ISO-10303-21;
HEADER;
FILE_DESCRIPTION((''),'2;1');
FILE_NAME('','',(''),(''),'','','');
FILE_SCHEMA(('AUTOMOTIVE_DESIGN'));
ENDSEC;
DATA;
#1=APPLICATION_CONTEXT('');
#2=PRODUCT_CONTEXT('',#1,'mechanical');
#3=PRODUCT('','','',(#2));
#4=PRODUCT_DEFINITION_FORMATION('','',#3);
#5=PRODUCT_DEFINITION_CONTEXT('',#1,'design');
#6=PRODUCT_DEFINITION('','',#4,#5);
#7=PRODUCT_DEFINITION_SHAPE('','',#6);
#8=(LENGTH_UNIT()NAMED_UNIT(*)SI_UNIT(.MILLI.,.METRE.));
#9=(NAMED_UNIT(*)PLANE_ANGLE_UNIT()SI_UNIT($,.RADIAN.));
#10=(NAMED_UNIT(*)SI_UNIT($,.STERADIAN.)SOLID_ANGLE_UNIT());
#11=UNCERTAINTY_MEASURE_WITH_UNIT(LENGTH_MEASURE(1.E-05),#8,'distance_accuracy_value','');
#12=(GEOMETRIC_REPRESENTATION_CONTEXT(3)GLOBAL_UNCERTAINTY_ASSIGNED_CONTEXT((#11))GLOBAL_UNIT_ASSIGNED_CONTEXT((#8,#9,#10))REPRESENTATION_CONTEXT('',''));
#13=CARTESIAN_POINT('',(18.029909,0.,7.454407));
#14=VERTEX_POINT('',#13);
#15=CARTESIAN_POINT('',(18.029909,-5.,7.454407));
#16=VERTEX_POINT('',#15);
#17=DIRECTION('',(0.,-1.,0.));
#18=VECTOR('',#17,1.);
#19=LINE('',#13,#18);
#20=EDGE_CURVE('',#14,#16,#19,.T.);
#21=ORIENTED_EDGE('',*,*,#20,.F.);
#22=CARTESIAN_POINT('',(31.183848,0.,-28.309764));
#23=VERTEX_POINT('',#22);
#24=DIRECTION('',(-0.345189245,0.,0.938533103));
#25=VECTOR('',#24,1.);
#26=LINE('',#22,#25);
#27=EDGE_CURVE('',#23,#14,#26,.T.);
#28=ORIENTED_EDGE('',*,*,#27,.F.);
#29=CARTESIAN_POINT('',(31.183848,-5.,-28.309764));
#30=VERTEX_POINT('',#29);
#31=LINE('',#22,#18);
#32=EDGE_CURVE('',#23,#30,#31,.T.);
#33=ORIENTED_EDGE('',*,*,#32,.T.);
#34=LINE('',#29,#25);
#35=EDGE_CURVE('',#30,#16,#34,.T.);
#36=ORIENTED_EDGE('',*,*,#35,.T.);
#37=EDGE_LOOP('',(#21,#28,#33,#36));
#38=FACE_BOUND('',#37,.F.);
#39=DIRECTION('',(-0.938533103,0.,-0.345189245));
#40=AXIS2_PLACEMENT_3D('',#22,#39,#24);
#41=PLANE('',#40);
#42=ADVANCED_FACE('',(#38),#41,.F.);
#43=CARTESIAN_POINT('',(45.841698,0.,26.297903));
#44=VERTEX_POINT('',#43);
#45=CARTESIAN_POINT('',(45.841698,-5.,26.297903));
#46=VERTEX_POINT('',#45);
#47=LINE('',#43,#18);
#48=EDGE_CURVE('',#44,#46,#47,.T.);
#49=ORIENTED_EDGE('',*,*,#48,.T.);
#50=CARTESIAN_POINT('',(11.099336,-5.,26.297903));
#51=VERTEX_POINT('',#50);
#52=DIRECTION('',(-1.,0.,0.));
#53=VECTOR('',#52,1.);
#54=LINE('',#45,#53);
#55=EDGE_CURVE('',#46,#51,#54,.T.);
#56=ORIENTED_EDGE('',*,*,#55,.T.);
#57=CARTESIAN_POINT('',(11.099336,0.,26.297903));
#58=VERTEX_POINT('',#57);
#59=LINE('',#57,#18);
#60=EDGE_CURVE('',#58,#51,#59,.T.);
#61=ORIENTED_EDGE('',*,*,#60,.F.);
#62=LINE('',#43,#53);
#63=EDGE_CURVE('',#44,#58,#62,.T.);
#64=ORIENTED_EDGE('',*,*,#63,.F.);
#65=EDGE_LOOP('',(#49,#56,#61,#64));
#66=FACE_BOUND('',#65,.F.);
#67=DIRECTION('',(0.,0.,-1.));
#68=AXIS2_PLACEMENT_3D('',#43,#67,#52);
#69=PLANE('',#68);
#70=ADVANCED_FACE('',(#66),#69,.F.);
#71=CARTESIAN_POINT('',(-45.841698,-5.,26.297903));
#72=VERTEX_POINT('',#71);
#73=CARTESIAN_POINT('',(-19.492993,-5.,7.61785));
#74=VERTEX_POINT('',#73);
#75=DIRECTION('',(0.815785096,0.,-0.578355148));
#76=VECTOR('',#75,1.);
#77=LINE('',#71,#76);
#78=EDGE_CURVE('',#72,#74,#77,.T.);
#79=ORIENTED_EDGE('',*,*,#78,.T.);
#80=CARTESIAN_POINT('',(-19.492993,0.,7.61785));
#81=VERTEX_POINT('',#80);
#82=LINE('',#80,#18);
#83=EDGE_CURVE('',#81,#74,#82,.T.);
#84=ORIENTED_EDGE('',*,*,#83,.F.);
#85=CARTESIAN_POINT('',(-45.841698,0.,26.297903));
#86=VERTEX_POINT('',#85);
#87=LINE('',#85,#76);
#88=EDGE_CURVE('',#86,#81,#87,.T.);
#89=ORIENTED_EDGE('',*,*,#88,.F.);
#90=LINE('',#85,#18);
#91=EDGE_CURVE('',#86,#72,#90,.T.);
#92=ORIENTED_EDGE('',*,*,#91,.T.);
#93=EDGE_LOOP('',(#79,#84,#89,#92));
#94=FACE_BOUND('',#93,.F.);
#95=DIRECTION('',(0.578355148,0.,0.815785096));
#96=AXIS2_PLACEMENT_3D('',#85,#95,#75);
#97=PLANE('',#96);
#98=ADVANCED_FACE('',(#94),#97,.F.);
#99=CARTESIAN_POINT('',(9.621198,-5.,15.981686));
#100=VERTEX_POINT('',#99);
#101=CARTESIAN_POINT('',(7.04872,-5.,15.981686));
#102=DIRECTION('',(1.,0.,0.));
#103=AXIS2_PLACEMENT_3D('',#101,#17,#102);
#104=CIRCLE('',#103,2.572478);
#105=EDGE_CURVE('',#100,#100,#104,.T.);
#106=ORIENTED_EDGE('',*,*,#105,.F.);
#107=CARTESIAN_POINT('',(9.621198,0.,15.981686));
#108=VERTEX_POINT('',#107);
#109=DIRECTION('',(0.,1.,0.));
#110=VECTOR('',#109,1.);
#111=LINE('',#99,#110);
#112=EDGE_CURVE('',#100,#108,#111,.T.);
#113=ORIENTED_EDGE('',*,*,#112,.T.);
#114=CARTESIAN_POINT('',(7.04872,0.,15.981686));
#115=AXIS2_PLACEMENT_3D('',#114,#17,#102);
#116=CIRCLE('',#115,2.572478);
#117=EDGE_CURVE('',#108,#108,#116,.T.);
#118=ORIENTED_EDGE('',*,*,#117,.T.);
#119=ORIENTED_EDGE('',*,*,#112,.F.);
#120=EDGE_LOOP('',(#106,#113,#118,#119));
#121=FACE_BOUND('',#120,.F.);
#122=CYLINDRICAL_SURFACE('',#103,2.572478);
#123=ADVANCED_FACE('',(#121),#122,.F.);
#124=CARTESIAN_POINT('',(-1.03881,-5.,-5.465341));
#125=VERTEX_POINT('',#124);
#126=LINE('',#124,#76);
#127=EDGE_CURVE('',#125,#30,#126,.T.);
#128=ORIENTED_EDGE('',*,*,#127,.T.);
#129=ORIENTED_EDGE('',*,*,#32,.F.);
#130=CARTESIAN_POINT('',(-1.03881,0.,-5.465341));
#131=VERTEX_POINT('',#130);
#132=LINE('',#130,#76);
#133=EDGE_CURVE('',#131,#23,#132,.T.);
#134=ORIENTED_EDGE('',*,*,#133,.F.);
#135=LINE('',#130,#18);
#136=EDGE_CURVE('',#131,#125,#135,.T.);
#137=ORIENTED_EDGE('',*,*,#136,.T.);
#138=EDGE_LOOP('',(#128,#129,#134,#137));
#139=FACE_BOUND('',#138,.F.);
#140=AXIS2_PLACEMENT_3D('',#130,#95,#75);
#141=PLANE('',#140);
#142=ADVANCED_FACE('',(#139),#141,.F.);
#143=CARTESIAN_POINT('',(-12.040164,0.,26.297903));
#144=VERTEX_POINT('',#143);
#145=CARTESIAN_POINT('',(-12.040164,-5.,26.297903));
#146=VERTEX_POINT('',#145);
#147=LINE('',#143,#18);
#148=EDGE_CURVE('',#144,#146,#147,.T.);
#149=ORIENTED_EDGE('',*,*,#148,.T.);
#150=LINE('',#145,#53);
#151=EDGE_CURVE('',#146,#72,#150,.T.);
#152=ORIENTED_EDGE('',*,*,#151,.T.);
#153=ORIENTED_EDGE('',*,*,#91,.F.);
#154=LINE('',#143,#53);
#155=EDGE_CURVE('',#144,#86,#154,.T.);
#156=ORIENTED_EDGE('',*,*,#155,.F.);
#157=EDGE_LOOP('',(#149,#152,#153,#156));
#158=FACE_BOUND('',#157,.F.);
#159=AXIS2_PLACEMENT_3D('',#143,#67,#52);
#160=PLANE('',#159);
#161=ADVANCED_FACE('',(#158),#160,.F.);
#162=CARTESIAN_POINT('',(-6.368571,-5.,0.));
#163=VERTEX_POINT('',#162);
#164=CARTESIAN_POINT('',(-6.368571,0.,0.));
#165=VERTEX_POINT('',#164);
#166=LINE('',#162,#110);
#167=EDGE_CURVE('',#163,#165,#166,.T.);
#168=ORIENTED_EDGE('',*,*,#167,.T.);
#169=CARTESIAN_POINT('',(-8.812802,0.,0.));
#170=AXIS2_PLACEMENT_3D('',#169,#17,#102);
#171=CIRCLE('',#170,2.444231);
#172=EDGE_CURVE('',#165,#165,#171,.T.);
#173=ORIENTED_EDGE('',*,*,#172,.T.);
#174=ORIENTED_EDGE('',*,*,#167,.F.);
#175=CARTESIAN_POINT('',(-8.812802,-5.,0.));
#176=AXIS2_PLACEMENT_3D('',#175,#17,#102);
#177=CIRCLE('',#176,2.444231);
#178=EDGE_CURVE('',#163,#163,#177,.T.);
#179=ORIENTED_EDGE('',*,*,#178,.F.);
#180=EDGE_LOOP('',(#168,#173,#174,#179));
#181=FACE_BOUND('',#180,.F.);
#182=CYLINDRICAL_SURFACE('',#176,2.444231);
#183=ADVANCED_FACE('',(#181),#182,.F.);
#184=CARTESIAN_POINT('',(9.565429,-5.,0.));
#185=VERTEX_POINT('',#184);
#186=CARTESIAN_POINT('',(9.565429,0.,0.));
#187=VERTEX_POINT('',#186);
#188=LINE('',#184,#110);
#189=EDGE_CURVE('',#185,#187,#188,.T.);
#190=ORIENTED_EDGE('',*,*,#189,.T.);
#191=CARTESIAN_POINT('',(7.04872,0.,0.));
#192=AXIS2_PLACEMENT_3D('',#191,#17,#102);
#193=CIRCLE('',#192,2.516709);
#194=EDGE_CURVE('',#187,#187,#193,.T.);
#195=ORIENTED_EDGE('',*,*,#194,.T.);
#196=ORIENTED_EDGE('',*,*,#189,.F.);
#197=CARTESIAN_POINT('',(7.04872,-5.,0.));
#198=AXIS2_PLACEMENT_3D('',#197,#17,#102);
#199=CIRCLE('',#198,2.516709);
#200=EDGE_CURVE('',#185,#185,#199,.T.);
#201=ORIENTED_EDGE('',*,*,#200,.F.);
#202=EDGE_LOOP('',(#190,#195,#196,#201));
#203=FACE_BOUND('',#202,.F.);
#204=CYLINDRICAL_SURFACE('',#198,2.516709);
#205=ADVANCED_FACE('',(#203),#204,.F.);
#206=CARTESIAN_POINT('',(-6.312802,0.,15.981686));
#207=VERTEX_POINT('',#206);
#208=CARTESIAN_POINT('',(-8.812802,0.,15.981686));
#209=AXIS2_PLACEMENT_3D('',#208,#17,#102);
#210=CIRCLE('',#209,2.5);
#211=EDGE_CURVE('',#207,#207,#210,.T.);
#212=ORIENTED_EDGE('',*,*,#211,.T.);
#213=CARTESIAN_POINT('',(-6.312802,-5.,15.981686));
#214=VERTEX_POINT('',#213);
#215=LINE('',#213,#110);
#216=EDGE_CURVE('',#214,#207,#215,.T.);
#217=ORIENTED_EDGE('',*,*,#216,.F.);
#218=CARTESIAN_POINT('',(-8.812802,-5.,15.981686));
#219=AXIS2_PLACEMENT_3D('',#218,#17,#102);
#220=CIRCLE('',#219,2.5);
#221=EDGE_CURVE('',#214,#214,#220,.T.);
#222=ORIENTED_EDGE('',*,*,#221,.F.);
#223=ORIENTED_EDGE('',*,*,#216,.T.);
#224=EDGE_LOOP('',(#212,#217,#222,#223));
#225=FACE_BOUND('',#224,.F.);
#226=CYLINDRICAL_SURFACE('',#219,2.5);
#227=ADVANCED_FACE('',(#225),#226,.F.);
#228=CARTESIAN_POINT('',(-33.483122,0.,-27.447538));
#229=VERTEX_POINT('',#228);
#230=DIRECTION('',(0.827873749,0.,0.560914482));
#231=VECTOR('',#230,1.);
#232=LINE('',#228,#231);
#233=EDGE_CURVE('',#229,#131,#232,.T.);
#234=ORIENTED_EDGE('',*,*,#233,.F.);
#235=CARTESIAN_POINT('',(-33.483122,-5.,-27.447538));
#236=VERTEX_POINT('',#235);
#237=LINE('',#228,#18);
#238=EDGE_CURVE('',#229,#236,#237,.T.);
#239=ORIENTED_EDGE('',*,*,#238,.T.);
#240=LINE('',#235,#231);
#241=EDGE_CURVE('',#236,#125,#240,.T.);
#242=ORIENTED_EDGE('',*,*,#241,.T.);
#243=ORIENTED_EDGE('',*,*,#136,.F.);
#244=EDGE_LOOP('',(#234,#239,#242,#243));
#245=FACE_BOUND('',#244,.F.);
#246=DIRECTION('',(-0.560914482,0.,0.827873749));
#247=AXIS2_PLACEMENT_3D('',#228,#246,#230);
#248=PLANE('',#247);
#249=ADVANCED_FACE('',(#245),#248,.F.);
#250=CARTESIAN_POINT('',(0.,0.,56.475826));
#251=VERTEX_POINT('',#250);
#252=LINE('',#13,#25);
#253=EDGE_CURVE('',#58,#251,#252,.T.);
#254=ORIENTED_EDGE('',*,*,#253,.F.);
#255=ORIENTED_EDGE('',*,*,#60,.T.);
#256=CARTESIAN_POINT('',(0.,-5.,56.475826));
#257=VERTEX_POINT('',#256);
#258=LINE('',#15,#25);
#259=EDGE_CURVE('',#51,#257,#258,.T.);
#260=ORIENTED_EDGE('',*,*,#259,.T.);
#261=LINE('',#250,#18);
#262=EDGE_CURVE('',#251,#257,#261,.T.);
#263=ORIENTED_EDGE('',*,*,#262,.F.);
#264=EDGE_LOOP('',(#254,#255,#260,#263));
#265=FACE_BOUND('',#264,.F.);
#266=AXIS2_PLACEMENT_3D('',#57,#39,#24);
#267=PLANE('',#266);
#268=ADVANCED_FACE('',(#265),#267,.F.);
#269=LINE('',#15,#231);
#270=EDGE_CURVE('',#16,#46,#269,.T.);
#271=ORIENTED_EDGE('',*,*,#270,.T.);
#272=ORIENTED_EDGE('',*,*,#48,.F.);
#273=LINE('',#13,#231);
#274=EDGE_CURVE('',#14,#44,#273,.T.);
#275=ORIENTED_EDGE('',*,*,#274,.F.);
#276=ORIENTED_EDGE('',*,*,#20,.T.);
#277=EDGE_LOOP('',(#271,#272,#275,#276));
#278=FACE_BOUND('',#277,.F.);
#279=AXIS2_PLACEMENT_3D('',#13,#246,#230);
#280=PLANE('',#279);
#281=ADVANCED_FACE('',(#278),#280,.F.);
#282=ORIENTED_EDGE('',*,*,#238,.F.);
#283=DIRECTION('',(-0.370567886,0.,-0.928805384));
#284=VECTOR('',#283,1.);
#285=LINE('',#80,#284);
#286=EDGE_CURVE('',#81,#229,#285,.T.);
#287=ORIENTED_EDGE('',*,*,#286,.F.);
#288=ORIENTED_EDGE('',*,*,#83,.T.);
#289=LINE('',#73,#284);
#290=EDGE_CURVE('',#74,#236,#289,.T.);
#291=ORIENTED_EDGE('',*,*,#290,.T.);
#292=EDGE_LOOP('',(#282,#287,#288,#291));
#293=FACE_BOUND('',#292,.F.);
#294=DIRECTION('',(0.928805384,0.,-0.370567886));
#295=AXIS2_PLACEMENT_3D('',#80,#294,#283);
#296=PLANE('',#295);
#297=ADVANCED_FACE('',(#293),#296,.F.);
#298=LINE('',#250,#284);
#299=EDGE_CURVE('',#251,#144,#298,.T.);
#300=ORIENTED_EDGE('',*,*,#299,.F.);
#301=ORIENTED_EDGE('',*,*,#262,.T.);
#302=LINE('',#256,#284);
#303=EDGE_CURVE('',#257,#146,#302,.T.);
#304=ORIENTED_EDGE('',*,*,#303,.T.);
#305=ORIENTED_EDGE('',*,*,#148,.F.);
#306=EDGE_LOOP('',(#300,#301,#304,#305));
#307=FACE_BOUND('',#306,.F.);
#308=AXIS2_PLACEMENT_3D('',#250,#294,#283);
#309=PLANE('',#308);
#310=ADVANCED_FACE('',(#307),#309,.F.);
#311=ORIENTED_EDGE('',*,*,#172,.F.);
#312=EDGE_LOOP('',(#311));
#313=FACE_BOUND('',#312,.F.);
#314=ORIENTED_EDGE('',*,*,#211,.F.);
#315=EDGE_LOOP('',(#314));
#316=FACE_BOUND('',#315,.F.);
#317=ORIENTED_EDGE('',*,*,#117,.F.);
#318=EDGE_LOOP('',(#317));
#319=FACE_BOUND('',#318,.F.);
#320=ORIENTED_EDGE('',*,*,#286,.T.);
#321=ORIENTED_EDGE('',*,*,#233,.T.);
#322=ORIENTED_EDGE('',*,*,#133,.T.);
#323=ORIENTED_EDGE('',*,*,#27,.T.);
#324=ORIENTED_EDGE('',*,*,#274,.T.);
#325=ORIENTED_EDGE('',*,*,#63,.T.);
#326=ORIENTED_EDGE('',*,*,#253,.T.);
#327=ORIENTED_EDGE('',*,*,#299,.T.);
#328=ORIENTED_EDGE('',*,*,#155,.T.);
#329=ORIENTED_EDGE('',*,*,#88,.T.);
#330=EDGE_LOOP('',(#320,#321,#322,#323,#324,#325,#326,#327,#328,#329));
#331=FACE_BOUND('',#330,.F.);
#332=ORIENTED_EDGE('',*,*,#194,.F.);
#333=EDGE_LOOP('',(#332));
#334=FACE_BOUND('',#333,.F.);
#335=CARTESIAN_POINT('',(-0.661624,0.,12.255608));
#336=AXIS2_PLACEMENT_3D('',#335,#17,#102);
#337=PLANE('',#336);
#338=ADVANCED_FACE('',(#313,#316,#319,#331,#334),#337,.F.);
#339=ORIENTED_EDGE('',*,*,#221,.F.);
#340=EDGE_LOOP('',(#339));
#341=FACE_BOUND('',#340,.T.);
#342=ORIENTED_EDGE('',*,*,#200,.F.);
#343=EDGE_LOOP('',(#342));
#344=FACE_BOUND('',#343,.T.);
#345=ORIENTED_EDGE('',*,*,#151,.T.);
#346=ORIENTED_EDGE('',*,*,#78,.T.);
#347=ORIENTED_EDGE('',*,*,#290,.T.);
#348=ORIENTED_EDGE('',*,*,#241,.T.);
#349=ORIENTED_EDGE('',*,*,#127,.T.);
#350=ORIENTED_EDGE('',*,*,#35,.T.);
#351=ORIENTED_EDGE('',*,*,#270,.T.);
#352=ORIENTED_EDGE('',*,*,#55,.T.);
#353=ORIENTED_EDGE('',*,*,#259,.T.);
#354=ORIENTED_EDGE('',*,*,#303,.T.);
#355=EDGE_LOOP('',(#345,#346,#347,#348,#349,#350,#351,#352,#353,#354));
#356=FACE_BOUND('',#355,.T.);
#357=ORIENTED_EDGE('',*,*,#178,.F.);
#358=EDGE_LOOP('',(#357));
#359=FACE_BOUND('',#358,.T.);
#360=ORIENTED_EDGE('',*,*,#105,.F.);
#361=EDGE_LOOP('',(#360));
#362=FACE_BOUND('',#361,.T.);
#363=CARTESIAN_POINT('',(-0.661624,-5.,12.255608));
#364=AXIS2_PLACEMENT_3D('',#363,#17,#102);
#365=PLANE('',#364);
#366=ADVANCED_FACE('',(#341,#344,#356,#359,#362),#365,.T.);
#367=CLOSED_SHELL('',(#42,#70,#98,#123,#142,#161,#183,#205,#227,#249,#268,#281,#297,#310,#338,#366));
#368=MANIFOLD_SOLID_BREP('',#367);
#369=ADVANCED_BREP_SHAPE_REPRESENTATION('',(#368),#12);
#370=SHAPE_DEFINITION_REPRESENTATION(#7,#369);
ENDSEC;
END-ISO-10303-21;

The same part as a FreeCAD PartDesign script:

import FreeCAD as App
import Part
import Sketcher

doc = App.newDocument("Part")
body = doc.addObject("PartDesign::Body", "Body")

sketch1 = body.newObject("Sketcher::SketchObject", "Sketch")
sketch1.AttachmentSupport = (doc.getObject("XZ_Plane"), [""])
sketch1.MapMode = "FlatFace"
sketch1.addGeometry([
    Part.LineSegment(App.Vector(11, 26, 0), App.Vector(0, 56, 0)),
    Part.LineSegment(App.Vector(0, 56, 0), App.Vector(-12, 26, 0)),
    Part.LineSegment(App.Vector(-12, 26, 0), App.Vector(-46, 26, 0)),
    Part.LineSegment(App.Vector(-46, 26, 0), App.Vector(-19, 8, 0)),
    Part.LineSegment(App.Vector(-19, 8, 0), App.Vector(-33, -27, 0)),
    Part.LineSegment(App.Vector(-33, -27, 0), App.Vector(-1, -5, 0)),
    Part.LineSegment(App.Vector(-1, -5, 0), App.Vector(31, -28, 0)),
    Part.LineSegment(App.Vector(31, -28, 0), App.Vector(18, 7, 0)),
    Part.LineSegment(App.Vector(18, 7, 0), App.Vector(46, 26, 0)),
    Part.LineSegment(App.Vector(46, 26, 0), App.Vector(11, 26, 0)),
], False)
sketch1.addConstraint([
    Sketcher.Constraint("Coincident", 0, 2, 1, 1),
    Sketcher.Constraint("Coincident", 1, 2, 2, 1),
    Sketcher.Constraint("Coincident", 2, 2, 3, 1),
    Sketcher.Constraint("Coincident", 3, 2, 4, 1),
    Sketcher.Constraint("Coincident", 4, 2, 5, 1),
    Sketcher.Constraint("Coincident", 5, 2, 6, 1),
    Sketcher.Constraint("Coincident", 6, 2, 7, 1),
    Sketcher.Constraint("Coincident", 7, 2, 8, 1),
    Sketcher.Constraint("Coincident", 8, 2, 9, 1),
    Sketcher.Constraint("Coincident", 9, 2, 0, 1),
    Sketcher.Constraint("Horizontal", 2),
    Sketcher.Constraint("Horizontal", 9),
    Sketcher.Constraint("Symmetric", 2, 2, 8, 2, -2),
    Sketcher.Constraint("PointOnObject", 0, 2, -2),
    Sketcher.Constraint("Parallel", 1, 4),
    Sketcher.Constraint("Parallel", 3, 6),
    Sketcher.Constraint("Parallel", 0, 7),
    Sketcher.Constraint("Parallel", 5, 8),
    Sketcher.Constraint("DistanceX", 9, 2, 9, 1, 34.742361),
    Sketcher.Constraint("DistanceX", 3, 2, 7, 2, 37.522902),
    Sketcher.Constraint("DistanceX", 1, 2, 9, 2, 23.1395),
    Sketcher.Constraint("Distance", 0, 32.154351),
    Sketcher.Constraint("Distance", 8, 33.594239),
    Sketcher.Constraint("DistanceX", 2, 2, 2, 1, 33.801534),
    Sketcher.Constraint("DistanceY", -1, 1, 3, 2, 7.61785),
    Sketcher.Constraint("DistanceX", 4, 2, -1, 1, 33.483122),
    Sketcher.Constraint("DistanceY", 4, 2, -1, 1, 27.447538),
    Sketcher.Constraint("DistanceX", 5, 2, -1, 1, 1.03881),
    Sketcher.Constraint("DistanceX", -1, 1, 6, 2, 31.183848),
])
pad1 = body.newObject("PartDesign::Pad", "Pad")
pad1.Profile = sketch1
pad1.Length = 5

sketch2 = body.newObject("Sketcher::SketchObject", "Sketch001")
sketch2.AttachmentSupport = (doc.getObject("XZ_Plane"), [""])
sketch2.MapMode = "FlatFace"
sketch2.AttachmentOffset = App.Placement(App.Vector(0, 0, 5), App.Rotation())
sketch2.addGeometry([
    Part.Circle(App.Vector(7, 16, 0), App.Vector(0, 0, 1), 2.6),
    Part.Circle(App.Vector(-8.8, 0, 0), App.Vector(0, 0, 1), 2.4),
    Part.Circle(App.Vector(7, 0, 0), App.Vector(0, 0, 1), 2.5),
    Part.Circle(App.Vector(-8.8, 16, 0), App.Vector(0, 0, 1), 2.5),
], False)
sketch2.addConstraint([
    Sketcher.Constraint("PointOnObject", 1, 3, -1),
    Sketcher.Constraint("PointOnObject", 2, 3, -1),
    Sketcher.Constraint("Horizontal", 0, 3, 3, 3),
    Sketcher.Constraint("Vertical", 0, 3, 2, 3),
    Sketcher.Constraint("Vertical", 1, 3, 3, 3),
    Sketcher.Constraint("Diameter", 3, 5.0),
    Sketcher.Constraint("Diameter", 2, 5.033418),
    Sketcher.Constraint("Diameter", 0, 5.144956),
    Sketcher.Constraint("Diameter", 1, 4.888462),
    Sketcher.Constraint("DistanceX", -1, 1, 0, 3, 7.04872),
    Sketcher.Constraint("DistanceY", -1, 1, 0, 3, 15.981686),
    Sketcher.Constraint("DistanceX", 1, 3, -1, 1, 8.812802),
])
pocket1 = body.newObject("PartDesign::Pocket", "Pocket")
pocket1.Profile = sketch2
pocket1.Length = 50

doc.recompute()
